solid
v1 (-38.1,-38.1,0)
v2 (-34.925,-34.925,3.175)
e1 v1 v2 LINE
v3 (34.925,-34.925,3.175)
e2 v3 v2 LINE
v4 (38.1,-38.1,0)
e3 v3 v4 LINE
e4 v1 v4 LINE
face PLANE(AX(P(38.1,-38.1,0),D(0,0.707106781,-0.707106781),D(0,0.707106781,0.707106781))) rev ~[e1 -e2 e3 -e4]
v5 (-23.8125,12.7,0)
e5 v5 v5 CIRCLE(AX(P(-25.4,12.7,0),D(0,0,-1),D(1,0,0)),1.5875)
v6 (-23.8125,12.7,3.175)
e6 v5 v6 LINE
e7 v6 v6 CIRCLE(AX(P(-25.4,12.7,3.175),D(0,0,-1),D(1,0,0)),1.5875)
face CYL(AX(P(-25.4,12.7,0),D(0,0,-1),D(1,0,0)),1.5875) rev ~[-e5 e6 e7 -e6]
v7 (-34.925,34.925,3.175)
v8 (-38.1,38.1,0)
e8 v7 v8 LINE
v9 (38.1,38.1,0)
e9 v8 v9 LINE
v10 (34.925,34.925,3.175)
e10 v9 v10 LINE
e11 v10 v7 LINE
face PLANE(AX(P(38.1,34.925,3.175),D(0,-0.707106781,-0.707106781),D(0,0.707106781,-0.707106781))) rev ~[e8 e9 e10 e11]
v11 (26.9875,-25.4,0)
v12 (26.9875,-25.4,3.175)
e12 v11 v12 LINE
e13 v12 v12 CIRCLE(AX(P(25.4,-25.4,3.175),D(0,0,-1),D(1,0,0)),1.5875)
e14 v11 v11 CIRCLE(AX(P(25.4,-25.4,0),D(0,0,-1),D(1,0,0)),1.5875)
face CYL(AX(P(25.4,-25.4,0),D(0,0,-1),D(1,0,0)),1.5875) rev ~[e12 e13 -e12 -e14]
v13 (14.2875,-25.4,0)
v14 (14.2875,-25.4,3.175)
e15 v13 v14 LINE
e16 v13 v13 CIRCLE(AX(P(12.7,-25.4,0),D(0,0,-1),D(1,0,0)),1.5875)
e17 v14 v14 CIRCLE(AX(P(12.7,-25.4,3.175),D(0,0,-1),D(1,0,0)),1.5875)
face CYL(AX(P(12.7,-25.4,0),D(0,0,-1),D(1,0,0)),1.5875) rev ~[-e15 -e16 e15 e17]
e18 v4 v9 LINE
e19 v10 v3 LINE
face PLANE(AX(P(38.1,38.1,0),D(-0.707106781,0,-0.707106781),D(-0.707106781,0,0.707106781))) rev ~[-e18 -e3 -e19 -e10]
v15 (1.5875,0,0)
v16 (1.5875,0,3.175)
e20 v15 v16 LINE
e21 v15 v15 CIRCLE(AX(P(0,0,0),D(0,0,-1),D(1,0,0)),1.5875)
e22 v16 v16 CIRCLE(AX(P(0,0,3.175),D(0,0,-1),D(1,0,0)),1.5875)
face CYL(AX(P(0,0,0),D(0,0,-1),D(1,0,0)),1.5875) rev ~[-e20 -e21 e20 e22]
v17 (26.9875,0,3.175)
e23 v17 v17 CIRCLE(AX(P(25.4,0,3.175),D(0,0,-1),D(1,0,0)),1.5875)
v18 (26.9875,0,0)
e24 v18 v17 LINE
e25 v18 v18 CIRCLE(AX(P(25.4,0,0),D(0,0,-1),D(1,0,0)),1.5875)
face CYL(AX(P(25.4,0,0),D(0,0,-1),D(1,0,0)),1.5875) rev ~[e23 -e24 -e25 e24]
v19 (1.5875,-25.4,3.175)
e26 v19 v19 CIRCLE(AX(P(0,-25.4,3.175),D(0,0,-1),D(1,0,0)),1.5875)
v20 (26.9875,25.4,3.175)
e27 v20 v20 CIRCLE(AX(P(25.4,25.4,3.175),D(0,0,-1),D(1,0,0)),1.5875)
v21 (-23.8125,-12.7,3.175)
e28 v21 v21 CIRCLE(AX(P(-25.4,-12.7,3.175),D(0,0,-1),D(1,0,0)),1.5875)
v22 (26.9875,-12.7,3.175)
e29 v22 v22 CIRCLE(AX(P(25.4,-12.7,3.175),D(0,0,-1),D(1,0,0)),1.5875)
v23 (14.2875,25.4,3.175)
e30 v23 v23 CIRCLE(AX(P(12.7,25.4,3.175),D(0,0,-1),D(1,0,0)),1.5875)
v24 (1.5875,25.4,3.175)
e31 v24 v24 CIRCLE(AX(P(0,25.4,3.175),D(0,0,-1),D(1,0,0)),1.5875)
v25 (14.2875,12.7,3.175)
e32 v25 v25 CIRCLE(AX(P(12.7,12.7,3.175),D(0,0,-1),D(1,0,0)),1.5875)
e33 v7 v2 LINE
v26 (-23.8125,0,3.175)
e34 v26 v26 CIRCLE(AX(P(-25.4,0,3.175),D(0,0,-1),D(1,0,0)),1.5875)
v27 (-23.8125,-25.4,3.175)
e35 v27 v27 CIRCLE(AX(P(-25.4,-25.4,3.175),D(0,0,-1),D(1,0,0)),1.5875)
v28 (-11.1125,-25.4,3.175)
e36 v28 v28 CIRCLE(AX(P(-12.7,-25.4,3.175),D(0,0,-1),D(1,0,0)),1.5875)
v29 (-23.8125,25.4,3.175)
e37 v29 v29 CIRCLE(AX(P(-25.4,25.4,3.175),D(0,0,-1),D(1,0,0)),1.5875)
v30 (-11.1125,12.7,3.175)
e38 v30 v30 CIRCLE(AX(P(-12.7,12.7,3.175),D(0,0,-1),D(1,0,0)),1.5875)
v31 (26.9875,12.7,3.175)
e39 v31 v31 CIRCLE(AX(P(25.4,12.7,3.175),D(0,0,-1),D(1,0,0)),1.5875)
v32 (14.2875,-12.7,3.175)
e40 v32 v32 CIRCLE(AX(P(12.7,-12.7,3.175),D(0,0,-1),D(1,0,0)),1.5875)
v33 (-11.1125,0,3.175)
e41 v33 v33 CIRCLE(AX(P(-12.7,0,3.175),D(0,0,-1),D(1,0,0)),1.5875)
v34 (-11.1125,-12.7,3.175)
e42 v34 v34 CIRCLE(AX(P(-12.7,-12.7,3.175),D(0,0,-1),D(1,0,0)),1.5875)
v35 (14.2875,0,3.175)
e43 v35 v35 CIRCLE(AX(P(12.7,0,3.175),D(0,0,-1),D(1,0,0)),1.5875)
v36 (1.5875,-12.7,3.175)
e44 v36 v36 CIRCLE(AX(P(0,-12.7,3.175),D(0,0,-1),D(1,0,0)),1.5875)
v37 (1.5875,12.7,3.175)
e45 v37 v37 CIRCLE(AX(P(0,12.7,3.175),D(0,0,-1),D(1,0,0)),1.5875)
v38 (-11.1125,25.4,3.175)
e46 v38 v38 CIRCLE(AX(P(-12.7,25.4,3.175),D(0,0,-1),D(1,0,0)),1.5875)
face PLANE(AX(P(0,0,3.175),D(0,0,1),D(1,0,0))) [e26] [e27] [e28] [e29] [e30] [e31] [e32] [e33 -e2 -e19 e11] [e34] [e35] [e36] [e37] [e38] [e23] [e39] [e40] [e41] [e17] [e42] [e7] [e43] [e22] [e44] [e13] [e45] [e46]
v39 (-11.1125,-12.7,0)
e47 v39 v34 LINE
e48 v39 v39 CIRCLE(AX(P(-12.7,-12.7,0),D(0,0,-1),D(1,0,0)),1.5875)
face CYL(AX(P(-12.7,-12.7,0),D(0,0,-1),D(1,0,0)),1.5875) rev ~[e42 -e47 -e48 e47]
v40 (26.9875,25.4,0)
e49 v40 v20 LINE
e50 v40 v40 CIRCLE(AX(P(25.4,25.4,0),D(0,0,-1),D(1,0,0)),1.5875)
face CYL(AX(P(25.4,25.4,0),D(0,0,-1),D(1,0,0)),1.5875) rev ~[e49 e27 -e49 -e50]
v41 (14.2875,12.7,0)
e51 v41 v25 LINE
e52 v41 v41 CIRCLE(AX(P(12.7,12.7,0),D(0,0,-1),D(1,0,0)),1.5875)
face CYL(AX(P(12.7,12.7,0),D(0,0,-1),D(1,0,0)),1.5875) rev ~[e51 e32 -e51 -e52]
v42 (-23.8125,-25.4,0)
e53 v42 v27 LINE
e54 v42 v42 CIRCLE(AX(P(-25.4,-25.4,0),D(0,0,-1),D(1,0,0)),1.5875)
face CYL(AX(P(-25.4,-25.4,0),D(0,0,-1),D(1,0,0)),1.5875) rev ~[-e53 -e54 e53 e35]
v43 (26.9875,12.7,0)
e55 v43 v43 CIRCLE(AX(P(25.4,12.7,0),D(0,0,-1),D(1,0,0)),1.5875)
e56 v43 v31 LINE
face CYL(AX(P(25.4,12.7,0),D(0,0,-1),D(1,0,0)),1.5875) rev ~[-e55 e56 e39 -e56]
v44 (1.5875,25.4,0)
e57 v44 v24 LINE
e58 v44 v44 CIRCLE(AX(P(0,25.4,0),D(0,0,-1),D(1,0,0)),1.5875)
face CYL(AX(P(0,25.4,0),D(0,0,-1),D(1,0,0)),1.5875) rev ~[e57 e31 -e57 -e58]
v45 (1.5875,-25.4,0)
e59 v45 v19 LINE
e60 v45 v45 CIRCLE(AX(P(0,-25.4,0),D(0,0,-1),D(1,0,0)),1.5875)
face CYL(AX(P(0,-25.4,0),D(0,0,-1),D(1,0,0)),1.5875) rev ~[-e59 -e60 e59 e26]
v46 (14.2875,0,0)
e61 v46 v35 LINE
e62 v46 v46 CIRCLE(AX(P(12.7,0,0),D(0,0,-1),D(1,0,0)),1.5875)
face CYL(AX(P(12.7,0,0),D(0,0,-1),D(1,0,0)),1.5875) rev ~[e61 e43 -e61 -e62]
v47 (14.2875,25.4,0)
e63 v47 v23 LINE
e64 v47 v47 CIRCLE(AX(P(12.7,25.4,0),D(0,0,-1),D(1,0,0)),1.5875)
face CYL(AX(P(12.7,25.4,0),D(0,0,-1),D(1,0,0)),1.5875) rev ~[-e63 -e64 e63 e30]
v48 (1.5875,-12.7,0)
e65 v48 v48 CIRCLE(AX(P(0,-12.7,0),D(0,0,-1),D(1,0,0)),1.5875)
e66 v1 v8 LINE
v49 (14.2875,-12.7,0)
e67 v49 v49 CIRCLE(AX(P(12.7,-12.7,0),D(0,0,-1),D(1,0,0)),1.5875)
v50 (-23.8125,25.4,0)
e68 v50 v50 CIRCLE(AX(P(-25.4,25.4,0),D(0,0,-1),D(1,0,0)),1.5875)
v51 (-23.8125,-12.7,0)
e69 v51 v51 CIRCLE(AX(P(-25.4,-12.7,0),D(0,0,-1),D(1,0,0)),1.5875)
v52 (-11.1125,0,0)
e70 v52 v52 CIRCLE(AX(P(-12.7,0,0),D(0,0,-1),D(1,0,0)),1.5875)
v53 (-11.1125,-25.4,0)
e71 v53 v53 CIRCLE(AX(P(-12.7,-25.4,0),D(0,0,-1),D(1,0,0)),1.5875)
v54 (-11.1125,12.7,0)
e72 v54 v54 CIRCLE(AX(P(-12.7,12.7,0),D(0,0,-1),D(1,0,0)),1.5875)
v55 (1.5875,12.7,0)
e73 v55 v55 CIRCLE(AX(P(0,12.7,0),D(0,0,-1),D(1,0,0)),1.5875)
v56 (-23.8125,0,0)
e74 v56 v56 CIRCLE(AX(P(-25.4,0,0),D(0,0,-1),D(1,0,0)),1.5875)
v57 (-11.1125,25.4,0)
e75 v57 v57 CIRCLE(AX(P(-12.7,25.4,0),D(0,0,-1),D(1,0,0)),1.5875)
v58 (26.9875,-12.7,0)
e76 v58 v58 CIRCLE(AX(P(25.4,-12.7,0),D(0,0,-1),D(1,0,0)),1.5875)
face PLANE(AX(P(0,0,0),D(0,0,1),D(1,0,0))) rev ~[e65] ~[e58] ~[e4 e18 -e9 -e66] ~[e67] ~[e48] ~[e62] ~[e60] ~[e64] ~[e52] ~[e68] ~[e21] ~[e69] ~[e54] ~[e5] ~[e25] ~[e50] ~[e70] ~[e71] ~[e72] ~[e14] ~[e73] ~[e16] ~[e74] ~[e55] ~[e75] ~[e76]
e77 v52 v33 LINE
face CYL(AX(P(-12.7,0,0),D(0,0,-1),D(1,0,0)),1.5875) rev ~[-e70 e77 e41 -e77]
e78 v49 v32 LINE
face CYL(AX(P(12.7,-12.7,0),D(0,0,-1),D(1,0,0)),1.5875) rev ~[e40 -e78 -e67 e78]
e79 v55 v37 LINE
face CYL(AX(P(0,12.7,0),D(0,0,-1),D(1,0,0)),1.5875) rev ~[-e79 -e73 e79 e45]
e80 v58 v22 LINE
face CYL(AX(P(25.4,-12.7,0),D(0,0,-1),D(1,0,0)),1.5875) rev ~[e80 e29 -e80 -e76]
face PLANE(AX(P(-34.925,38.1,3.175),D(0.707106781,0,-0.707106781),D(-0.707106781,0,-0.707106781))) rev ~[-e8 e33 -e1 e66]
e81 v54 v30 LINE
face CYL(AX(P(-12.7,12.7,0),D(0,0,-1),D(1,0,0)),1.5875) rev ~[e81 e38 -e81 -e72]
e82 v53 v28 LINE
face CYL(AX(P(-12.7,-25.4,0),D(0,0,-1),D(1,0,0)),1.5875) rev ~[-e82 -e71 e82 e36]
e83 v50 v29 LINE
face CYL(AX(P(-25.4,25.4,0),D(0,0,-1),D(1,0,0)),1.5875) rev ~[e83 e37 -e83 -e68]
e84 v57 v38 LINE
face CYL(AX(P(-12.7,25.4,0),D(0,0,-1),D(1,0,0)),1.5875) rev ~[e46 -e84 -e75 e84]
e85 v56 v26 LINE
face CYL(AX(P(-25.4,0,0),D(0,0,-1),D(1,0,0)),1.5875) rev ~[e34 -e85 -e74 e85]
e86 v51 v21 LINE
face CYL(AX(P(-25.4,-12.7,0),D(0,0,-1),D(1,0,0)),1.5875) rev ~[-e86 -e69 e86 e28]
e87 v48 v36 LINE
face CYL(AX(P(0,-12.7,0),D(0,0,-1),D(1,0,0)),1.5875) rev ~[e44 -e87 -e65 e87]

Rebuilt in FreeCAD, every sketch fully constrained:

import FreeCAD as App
import Part
import Sketcher

V = App.Vector
Q = App.Units.Quantity


def add_polygon(sketch, points):
    """Adds a closed chain of lines whose ends are joined by coincident constraints."""
    first, n = sketch.GeometryCount, len(points)
    for a, b in zip(points, points[1:] + points[:1]):
        sketch.addGeometry(Part.LineSegment(App.Vector(*a, 0), App.Vector(*b, 0)), False)
    for i in range(n):
        sketch.addConstraint(Sketcher.Constraint("Coincident", first + i, 2, first + (i + 1) % n, 1))

doc = App.newDocument("Part")
body = doc.addObject("PartDesign::Body", "Body")

sketch1 = doc.addObject("Sketcher::SketchObject", "Sketch")
body.addObject(sketch1)
sketch1.AttachmentSupport = (doc.XY_Plane, [""])
sketch1.MapMode = "FlatFace"
add_polygon(sketch1, [(-38, 38), (-38, -38), (38, -38), (38, 38)])
sketch1.addConstraint(Sketcher.Constraint("Vertical", 0))
sketch1.addConstraint(Sketcher.Constraint("Horizontal", 1))
sketch1.addConstraint(Sketcher.Constraint("Vertical", 2))
sketch1.addConstraint(Sketcher.Constraint("Horizontal", 3))
sketch1.addConstraint(Sketcher.Constraint("Symmetric", 0, 2, 2, 2, -1, 1))
sketch1.addConstraint(Sketcher.Constraint("Equal", 3, 0))
sketch1.addConstraint(Sketcher.Constraint("DistanceX", 1, 1, 1, 2, Q("3 in")))
pad1 = doc.addObject("PartDesign::Pad", "Pad")
body.addObject(pad1)
pad1.Profile = sketch1
pad1.Length = Q("0.125 in")

sketch2 = doc.addObject("Sketcher::SketchObject", "Sketch001")
body.addObject(sketch2)
sketch2.AttachmentSupport = (doc.XZ_Plane, [""])
sketch2.MapMode = "FlatFace"
sketch2.AttachmentOffset = App.Placement(V(0, 0, -1.5 * 25.4), App.Rotation())
add_polygon(sketch2, [(38.1, 3.2), (38.1, 0), (34.9, 3.2)])
add_polygon(sketch2, [(-34.9, 3.2), (-38.1, 0), (-38.1, 3.2)])
sketch2.addConstraint(Sketcher.Constraint("Vertical", 0))
sketch2.addConstraint(Sketcher.Constraint("Horizontal", 2))
sketch2.addConstraint(Sketcher.Constraint("Vertical", 4))
sketch2.addConstraint(Sketcher.Constraint("Horizontal", 5))
sketch2.addConstraint(Sketcher.Constraint("Symmetric", 0, 2, 3, 2, -1, 1))
sketch2.addConstraint(Sketcher.Constraint("Symmetric", 1, 2, 5, 2, -2))
sketch2.addConstraint(Sketcher.Constraint("PointOnObject", 0, 2, -1))
sketch2.addConstraint(Sketcher.Constraint("Perpendicular", 1, 3))
sketch2.addConstraint(Sketcher.Constraint("DistanceX", 3, 2, 0, 2, Q("3 in")))
sketch2.addConstraint(Sketcher.Constraint("DistanceX", 2, 1, 2, 2, Q("0.125 in")))
pocket1 = doc.addObject("PartDesign::Pocket", "Pocket")
body.addObject(pocket1)
pocket1.Profile = sketch2
pocket1.Length = Q("3 in")
pocket1.Reversed = True

sketch3 = doc.addObject("Sketcher::SketchObject", "Sketch002")
body.addObject(sketch3)
sketch3.AttachmentSupport = (doc.YZ_Plane, [""])
sketch3.MapMode = "FlatFace"
sketch3.AttachmentOffset = App.Placement(V(0, 0, 1.5 * 25.4), App.Rotation())
add_polygon(sketch3, [(34.9, 3.2), (38.1, 0), (38.1, 3.2)])
add_polygon(sketch3, [(-38.1, 3.2), (-38.1, 0), (-34.9, 3.2)])
sketch3.addConstraint(Sketcher.Constraint("Vertical", 1))
sketch3.addConstraint(Sketcher.Constraint("Horizontal", 2))
sketch3.addConstraint(Sketcher.Constraint("Vertical", 3))
sketch3.addConstraint(Sketcher.Constraint("Horizontal", 5))
sketch3.addConstraint(Sketcher.Constraint("Symmetric", 0, 2, 3, 2, -1, 1))
sketch3.addConstraint(Sketcher.Constraint("Symmetric", 2, 2, 4, 2, -2))
sketch3.addConstraint(Sketcher.Constraint("PointOnObject", 0, 2, -1))
sketch3.addConstraint(Sketcher.Constraint("Perpendicular", 0, 4))
sketch3.addConstraint(Sketcher.Constraint("DistanceX", 3, 2, 0, 2, Q("3 in")))
sketch3.addConstraint(Sketcher.Constraint("DistanceX", 2, 2, 2, 1, Q("0.125 in")))
pocket2 = doc.addObject("PartDesign::Pocket", "Pocket001")
body.addObject(pocket2)
pocket2.Profile = sketch3
pocket2.Length = Q("3 in")

sketch4 = doc.addObject("Sketcher::SketchObject", "Sketch003")
body.addObject(sketch4)
sketch4.AttachmentSupport = (doc.XY_Plane, [""])
sketch4.MapMode = "FlatFace"
sketch4.addGeometry(Part.Circle(V(-25.4, -25.4, 0), V(0, 0, 1), 1.6), False)
sketch4.addGeometry(Part.Circle(V(-12.7, -25.4, 0), V(0, 0, 1), 1.6), False)
sketch4.addGeometry(Part.Circle(V(12.7, -25.4, 0), V(0, 0, 1), 1.6), False)
sketch4.addGeometry(Part.Circle(V(25.4, -25.4, 0), V(0, 0, 1), 1.6), False)
sketch4.addGeometry(Part.Circle(V(0, -25.4, 0), V(0, 0, 1), 1.6), False)
sketch4.addGeometry(Part.Circle(V(0, -12.7, 0), V(0, 0, 1), 1.6), False)
sketch4.addGeometry(Part.Circle(V(-12.7, -12.7, 0), V(0, 0, 1), 1.6), False)
sketch4.addGeometry(Part.Circle(V(-25.4, -12.7, 0), V(0, 0, 1), 1.6), False)
sketch4.addGeometry(Part.Circle(V(-25.4, 0, 0), V(0, 0, 1), 1.6), False)
sketch4.addGeometry(Part.Circle(V(-12.7, 0, 0), V(0, 0, 1), 1.6), False)
sketch4.addGeometry(Part.Circle(V(0, 0, 0), V(0, 0, 1), 1.6), False)
sketch4.addGeometry(Part.Circle(V(12.7, -12.7, 0), V(0, 0, 1), 1.6), False)
sketch4.addGeometry(Part.Circle(V(25.4, -12.7, 0), V(0, 0, 1), 1.6), False)
sketch4.addGeometry(Part.Circle(V(25.4, 0, 0), V(0, 0, 1), 1.6), False)
sketch4.addGeometry(Part.Circle(V(12.7, 0, 0), V(0, 0, 1), 1.6), False)
sketch4.addGeometry(Part.Circle(V(-25.4, 12.7, 0), V(0, 0, 1), 1.6), False)
sketch4.addGeometry(Part.Circle(V(-25.4, 25.4, 0), V(0, 0, 1), 1.6), False)
sketch4.addGeometry(Part.Circle(V(-12.7, 25.4, 0), V(0, 0, 1), 1.6), False)
sketch4.addGeometry(Part.Circle(V(0, 25.4, 0), V(0, 0, 1), 1.6), False)
sketch4.addGeometry(Part.Circle(V(12.7, 25.4, 0), V(0, 0, 1), 1.6), False)
sketch4.addGeometry(Part.Circle(V(25.4, 25.4, 0), V(0, 0, 1), 1.6), False)
sketch4.addGeometry(Part.Circle(V(25.4, 12.7, 0), V(0, 0, 1), 1.6), False)
sketch4.addGeometry(Part.Circle(V(12.7, 12.7, 0), V(0, 0, 1), 1.6), False)
sketch4.addGeometry(Part.Circle(V(0, 12.7, 0), V(0, 0, 1), 1.6), False)
sketch4.addGeometry(Part.Circle(V(-12.7, 12.7, 0), V(0, 0, 1), 1.6), False)
sketch4.addConstraint(Sketcher.Constraint("Coincident", 10, 3, -1, 1))
sketch4.addConstraint(Sketcher.Constraint("Equal", 0, 1))
sketch4.addConstraint(Sketcher.Constraint("Equal", 1, 2))
sketch4.addConstraint(Sketcher.Constraint("Equal", 2, 3))
sketch4.addConstraint(Sketcher.Constraint("Equal", 3, 4))
sketch4.addConstraint(Sketcher.Constraint("Equal", 4, 5))
sketch4.addConstraint(Sketcher.Constraint("Equal", 5, 6))
sketch4.addConstraint(Sketcher.Constraint("Equal", 6, 7))
sketch4.addConstraint(Sketcher.Constraint("Equal", 7, 8))
sketch4.addConstraint(Sketcher.Constraint("Equal", 8, 9))
sketch4.addConstraint(Sketcher.Constraint("Equal", 9, 10))
sketch4.addConstraint(Sketcher.Constraint("Equal", 10, 11))
sketch4.addConstraint(Sketcher.Constraint("Equal", 11, 12))
sketch4.addConstraint(Sketcher.Constraint("Equal", 12, 13))
sketch4.addConstraint(Sketcher.Constraint("Equal", 13, 14))
sketch4.addConstraint(Sketcher.Constraint("Equal", 14, 15))
sketch4.addConstraint(Sketcher.Constraint("Equal", 15, 16))
sketch4.addConstraint(Sketcher.Constraint("Equal", 16, 17))
sketch4.addConstraint(Sketcher.Constraint("Equal", 17, 18))
sketch4.addConstraint(Sketcher.Constraint("Equal", 18, 19))
sketch4.addConstraint(Sketcher.Constraint("Equal", 19, 20))
sketch4.addConstraint(Sketcher.Constraint("Equal", 20, 21))
sketch4.addConstraint(Sketcher.Constraint("Equal", 21, 22))
sketch4.addConstraint(Sketcher.Constraint("Equal", 22, 23))
sketch4.addConstraint(Sketcher.Constraint("Equal", 23, 24))
sketch4.addConstraint(Sketcher.Constraint("Symmetric", 8, 3, 13, 3, -1, 1))
sketch4.addConstraint(Sketcher.Constraint("Symmetric", 9, 3, 14, 3, -1, 1))
sketch4.addConstraint(Sketcher.Constraint("Symmetric", 12, 3, 15, 3, -1, 1))
sketch4.addConstraint(Sketcher.Constraint("Symmetric", 3, 3, 16, 3, -1, 1))
sketch4.addConstraint(Sketcher.Constraint("Symmetric", 2, 3, 17, 3, -1, 1))
sketch4.addConstraint(Sketcher.Constraint("Symmetric", 4, 3, 18, 3, -1, 1))
sketch4.addConstraint(Sketcher.Constraint("Symmetric", 1, 3, 19, 3, -1, 1))
sketch4.addConstraint(Sketcher.Constraint("Symmetric", 0, 3, 20, 3, -1, 1))
sketch4.addConstraint(Sketcher.Constraint("Symmetric", 7, 3, 21, 3, -1, 1))
sketch4.addConstraint(Sketcher.Constraint("Symmetric", 6, 3, 22, 3, -1, 1))
sketch4.addConstraint(Sketcher.Constraint("Symmetric", 5, 3, 23, 3, -1, 1))
sketch4.addConstraint(Sketcher.Constraint("Symmetric", 11, 3, 24, 3, -1, 1))
sketch4.addConstraint(Sketcher.Constraint("Symmetric", 1, 3, 2, 3, -2))
sketch4.addConstraint(Sketcher.Constraint("Symmetric", 0, 3, 3, 3, -2))
sketch4.addConstraint(Sketcher.Constraint("Symmetric", 6, 3, 11, 3, -2))
sketch4.addConstraint(Sketcher.Constraint("Symmetric", 7, 3, 12, 3, -2))
sketch4.addConstraint(Sketcher.Constraint("PointOnObject", 4, 3, -2))
sketch4.addConstraint(Sketcher.Constraint("PointOnObject", 5, 3, -2))
sketch4.addConstraint(Sketcher.Constraint("PointOnObject", 8, 3, -1))
sketch4.addConstraint(Sketcher.Constraint("PointOnObject", 9, 3, -1))
sketch4.addConstraint(Sketcher.Constraint("Horizontal", 0, 3, 1, 3))
sketch4.addConstraint(Sketcher.Constraint("Horizontal", 3, 3, 4, 3))
sketch4.addConstraint(Sketcher.Constraint("Horizontal", 5, 3, 6, 3))
sketch4.addConstraint(Sketcher.Constraint("Horizontal", 6, 3, 7, 3))
sketch4.addConstraint(Sketcher.Constraint("Vertical", 1, 3, 6, 3))
sketch4.addConstraint(Sketcher.Constraint("Vertical", 0, 3, 7, 3))
sketch4.addConstraint(Sketcher.Constraint("Vertical", 7, 3, 8, 3))
sketch4.addConstraint(Sketcher.Constraint("Vertical", 6, 3, 9, 3))
sketch4.addConstraint(Sketcher.Constraint("Diameter", 0, Q("0.125 in")))
sketch4.addConstraint(Sketcher.Constraint("DistanceX", 0, 3, -1, 1, Q("1 in")))
sketch4.addConstraint(Sketcher.Constraint("DistanceY", 0, 3, -1, 1, Q("1 in")))
sketch4.addConstraint(Sketcher.Constraint("DistanceX", 1, 3, 2, 3, Q("1 in")))
sketch4.addConstraint(Sketcher.Constraint("DistanceY", 7, 3, 15, 3, Q("1 in")))
pocket3 = doc.addObject("PartDesign::Pocket", "Pocket002")
body.addObject(pocket3)
pocket3.Profile = sketch4
pocket3.Type = "ThroughAll"
pocket3.Reversed = True

doc.recompute()
